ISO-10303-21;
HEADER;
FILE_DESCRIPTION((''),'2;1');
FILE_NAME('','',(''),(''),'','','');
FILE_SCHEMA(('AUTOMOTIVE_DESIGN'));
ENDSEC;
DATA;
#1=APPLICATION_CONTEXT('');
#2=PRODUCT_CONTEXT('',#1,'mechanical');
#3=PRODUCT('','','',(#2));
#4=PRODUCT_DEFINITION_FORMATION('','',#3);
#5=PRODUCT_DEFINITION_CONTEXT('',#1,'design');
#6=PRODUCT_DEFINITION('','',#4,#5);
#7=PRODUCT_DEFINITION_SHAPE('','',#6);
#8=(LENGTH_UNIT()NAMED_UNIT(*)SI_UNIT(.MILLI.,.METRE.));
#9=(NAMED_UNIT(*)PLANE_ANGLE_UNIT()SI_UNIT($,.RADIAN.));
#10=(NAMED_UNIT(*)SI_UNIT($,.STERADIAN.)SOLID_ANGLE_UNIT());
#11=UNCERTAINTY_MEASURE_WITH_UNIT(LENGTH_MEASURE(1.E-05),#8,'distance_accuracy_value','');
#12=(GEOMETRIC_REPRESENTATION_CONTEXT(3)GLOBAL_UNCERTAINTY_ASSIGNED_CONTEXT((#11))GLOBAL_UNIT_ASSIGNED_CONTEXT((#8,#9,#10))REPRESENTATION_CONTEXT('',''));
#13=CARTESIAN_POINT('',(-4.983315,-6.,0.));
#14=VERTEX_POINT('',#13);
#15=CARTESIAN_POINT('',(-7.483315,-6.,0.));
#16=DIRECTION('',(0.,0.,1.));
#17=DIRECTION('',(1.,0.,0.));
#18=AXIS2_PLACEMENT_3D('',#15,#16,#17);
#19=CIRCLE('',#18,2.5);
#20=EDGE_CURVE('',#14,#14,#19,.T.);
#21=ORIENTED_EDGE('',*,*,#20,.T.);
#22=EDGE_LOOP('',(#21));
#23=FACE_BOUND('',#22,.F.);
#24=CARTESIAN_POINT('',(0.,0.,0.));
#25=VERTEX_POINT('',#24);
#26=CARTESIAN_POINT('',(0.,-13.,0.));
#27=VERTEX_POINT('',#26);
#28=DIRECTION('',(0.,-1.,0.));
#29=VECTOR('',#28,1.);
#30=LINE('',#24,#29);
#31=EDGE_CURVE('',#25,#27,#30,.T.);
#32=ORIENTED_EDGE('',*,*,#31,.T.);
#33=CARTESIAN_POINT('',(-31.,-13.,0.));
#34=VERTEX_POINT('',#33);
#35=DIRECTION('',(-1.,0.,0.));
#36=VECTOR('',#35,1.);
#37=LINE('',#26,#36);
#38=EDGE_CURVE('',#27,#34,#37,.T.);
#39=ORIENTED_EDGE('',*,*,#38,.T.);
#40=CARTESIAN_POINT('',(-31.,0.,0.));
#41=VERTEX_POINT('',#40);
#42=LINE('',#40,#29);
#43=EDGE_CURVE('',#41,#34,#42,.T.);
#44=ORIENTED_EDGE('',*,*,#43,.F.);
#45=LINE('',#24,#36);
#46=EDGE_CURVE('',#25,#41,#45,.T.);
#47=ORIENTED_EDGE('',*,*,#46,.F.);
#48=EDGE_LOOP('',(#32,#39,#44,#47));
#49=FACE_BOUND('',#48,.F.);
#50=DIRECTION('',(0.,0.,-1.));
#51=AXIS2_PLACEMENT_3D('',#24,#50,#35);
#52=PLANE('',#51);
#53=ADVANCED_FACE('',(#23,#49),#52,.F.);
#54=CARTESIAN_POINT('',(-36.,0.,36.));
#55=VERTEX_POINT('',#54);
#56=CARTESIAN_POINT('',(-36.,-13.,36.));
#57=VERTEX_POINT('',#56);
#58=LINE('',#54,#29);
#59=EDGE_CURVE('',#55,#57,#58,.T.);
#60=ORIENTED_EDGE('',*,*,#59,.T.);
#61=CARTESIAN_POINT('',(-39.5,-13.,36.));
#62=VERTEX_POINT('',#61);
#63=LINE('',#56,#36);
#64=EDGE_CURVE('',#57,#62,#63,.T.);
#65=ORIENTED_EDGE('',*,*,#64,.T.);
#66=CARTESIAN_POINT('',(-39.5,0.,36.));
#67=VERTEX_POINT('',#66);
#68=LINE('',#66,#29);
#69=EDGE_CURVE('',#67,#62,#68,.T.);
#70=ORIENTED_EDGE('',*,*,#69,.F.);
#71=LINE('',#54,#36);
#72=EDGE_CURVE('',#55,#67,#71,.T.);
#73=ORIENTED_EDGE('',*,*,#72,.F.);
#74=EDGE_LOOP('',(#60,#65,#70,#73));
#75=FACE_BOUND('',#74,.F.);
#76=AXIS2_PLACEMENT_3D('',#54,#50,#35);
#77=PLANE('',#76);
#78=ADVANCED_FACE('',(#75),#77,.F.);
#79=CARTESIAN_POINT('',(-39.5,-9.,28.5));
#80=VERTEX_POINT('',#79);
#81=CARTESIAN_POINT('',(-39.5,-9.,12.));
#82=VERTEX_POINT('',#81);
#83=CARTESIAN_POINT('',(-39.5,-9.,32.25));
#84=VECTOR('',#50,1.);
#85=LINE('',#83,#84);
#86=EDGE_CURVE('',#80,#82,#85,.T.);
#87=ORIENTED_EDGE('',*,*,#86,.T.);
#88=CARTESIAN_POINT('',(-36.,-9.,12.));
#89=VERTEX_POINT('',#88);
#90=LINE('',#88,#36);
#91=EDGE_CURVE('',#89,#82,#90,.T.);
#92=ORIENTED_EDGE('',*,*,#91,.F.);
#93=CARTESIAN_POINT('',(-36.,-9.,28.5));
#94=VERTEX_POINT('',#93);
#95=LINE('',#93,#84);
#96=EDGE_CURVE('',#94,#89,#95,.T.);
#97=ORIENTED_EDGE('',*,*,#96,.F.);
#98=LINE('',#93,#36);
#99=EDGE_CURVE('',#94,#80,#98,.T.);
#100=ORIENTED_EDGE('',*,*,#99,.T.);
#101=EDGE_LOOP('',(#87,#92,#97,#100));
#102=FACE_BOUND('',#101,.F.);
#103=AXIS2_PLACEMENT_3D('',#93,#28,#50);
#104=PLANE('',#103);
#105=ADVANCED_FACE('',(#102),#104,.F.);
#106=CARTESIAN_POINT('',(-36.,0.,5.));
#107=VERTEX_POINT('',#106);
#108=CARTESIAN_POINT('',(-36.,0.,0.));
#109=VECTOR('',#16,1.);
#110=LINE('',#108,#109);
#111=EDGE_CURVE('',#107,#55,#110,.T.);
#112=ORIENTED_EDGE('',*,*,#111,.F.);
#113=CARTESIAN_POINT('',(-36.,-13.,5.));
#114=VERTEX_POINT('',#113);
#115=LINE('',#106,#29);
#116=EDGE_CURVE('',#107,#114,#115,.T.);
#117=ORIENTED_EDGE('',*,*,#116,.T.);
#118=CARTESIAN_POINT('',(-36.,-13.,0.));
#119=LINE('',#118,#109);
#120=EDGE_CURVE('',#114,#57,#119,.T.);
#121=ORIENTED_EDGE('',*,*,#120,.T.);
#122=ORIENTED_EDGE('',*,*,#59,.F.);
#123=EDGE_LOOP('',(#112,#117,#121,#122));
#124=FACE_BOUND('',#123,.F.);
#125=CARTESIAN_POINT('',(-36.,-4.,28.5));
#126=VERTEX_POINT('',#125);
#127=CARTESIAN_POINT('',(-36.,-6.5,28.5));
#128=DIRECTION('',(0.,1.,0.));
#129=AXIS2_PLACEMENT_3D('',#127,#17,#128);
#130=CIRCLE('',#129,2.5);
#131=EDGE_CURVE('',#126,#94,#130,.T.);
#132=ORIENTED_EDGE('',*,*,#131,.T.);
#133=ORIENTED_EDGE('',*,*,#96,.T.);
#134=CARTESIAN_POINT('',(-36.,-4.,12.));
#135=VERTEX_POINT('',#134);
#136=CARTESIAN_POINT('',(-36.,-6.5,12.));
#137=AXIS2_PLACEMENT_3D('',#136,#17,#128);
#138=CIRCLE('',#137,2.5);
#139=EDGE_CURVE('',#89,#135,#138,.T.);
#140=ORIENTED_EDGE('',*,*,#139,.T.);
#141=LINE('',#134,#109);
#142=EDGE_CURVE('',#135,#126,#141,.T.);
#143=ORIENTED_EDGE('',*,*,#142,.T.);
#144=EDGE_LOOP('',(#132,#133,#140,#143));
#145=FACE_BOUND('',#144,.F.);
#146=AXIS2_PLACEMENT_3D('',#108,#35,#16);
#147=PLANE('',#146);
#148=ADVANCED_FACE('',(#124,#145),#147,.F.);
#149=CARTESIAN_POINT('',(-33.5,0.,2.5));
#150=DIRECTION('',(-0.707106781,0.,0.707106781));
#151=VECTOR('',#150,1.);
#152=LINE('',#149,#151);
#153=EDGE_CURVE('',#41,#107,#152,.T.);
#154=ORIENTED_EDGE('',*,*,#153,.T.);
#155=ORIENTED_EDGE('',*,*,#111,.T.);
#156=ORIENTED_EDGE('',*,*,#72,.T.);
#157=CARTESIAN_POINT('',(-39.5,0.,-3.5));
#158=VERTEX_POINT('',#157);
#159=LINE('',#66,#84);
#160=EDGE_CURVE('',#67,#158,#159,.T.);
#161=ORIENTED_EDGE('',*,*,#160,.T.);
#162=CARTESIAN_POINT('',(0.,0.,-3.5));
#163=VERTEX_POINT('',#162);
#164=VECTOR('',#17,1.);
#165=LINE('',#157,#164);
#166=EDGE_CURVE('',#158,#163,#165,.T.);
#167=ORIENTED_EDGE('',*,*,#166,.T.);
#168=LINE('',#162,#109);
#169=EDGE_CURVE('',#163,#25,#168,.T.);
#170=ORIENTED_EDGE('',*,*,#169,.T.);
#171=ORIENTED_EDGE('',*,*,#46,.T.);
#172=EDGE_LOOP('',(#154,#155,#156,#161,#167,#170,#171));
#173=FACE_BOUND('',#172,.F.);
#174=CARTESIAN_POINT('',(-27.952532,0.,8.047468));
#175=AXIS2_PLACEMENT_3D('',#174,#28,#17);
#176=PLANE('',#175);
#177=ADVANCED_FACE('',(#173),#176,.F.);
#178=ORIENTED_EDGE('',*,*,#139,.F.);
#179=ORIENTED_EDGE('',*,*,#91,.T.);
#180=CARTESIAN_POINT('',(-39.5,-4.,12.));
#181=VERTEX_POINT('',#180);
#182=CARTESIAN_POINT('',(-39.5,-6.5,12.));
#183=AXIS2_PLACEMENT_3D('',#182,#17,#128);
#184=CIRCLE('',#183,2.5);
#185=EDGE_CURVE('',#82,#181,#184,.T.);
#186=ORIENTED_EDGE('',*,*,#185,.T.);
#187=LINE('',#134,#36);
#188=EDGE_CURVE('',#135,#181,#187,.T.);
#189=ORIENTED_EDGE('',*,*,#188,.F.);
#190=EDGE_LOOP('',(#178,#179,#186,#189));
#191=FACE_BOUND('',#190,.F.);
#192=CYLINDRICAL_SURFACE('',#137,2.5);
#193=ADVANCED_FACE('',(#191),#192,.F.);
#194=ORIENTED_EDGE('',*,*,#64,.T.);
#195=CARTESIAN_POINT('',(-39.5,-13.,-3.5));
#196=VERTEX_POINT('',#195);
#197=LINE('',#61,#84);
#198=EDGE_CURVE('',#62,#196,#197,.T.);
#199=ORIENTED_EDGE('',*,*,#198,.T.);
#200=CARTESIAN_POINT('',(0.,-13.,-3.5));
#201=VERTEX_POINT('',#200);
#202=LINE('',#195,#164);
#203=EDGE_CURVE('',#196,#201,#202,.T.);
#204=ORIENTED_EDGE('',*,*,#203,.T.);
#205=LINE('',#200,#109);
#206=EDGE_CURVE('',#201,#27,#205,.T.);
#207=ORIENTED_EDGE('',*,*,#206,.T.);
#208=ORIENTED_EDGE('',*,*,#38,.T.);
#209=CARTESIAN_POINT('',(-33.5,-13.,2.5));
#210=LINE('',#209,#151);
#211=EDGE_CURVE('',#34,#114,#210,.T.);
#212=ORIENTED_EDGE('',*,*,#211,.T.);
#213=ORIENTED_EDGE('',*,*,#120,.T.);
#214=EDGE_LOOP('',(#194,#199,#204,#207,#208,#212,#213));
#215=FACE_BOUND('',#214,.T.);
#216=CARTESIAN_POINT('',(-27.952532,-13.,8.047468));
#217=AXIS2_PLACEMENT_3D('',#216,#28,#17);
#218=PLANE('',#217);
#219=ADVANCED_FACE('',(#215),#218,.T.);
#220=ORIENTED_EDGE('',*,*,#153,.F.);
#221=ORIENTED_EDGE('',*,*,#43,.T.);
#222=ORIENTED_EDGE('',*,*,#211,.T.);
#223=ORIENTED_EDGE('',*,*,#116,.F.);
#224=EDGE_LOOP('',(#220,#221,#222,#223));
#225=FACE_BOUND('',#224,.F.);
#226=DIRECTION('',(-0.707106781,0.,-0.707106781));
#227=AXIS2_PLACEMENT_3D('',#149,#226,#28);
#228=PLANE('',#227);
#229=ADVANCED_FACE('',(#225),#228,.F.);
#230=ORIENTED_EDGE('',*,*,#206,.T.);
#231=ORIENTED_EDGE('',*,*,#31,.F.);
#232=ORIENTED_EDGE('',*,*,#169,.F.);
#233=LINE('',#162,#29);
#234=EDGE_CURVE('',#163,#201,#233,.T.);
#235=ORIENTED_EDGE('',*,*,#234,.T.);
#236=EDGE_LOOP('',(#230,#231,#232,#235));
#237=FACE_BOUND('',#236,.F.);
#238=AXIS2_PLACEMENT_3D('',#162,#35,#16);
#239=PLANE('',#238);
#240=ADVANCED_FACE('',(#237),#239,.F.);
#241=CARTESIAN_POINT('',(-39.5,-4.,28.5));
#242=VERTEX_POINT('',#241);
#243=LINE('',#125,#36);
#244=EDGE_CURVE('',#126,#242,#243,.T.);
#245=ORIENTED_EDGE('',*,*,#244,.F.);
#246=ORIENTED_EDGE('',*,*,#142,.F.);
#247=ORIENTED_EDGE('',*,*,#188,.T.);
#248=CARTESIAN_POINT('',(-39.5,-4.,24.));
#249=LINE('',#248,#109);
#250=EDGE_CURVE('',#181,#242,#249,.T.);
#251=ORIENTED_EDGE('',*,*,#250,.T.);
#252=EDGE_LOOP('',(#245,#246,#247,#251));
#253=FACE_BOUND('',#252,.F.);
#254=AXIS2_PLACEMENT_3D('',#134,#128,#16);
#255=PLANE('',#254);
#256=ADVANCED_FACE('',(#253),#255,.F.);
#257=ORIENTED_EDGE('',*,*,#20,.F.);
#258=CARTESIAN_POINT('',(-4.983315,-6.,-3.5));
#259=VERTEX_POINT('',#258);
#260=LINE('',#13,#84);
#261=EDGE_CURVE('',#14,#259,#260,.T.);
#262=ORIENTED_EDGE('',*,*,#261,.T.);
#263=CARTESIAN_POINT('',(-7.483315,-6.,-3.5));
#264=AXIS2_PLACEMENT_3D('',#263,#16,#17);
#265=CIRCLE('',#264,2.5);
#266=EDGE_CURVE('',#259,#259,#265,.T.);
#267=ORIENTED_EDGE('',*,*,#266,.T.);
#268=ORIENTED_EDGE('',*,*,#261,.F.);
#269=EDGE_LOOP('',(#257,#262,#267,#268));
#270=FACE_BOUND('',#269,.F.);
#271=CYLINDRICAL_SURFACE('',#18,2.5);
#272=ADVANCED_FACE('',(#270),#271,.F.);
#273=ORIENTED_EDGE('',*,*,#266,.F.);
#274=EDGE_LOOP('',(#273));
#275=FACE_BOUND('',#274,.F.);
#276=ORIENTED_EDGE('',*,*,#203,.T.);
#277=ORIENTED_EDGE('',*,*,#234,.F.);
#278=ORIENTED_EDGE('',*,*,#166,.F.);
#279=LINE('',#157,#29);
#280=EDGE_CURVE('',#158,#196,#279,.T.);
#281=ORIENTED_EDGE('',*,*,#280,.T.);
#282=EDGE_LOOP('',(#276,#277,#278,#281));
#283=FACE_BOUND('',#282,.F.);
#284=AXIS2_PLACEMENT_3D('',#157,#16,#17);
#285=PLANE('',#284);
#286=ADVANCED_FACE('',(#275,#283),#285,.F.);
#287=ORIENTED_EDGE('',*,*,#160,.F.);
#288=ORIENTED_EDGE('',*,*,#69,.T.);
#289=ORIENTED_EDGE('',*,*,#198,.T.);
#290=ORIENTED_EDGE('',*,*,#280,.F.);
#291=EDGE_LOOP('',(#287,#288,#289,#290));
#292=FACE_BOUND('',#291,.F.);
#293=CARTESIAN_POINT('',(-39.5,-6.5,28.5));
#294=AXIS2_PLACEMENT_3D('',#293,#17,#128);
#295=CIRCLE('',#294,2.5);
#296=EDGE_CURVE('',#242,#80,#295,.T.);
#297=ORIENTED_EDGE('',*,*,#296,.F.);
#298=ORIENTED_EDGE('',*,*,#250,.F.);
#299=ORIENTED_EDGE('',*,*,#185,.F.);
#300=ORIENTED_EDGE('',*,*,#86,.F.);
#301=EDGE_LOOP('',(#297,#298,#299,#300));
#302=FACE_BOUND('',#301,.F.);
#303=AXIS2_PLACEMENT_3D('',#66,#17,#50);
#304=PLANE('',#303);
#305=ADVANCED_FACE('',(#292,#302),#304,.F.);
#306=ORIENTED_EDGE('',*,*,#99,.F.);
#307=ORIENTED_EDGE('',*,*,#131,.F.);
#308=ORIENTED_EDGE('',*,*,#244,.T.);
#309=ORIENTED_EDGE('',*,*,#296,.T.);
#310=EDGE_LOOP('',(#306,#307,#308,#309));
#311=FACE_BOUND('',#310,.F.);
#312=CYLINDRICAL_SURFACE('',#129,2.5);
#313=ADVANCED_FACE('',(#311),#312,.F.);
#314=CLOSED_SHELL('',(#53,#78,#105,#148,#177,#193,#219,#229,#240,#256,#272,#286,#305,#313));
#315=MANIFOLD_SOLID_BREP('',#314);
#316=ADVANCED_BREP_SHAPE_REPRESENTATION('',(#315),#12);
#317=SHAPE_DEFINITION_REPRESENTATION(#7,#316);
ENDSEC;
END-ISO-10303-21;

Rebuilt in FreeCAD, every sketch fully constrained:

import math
import FreeCAD as App
import Part
import Sketcher

V = App.Vector
Q = App.Units.Quantity


def edges_at(feature, points):
    """Names of the edges that pass closest to the given points."""
    edges = feature.Shape.Edges
    near = lambda p: min(range(len(edges)), key=lambda i: edges[i].distToShape(Part.Vertex(*p))[0])
    return sorted({f"Edge{near(p) + 1}" for p in points})


def add_polygon(sketch, points):
    """Adds a closed chain of lines whose ends are joined by coincident constraints."""
    first, n = sketch.GeometryCount, len(points)
    for a, b in zip(points, points[1:] + points[:1]):
        sketch.addGeometry(Part.LineSegment(App.Vector(*a, 0), App.Vector(*b, 0)), False)
    for i in range(n):
        sketch.addConstraint(Sketcher.Constraint("Coincident", first + i, 2, first + (i + 1) % n, 1))

doc = App.newDocument("Part")
body = doc.addObject("PartDesign::Body", "Body")

# Sketch on XZ plane
sketch1 = body.newObject("Sketcher::SketchObject", "Sketch")
sketch1.AttachmentSupport = (doc.getObject("XZ_Plane"), [""])
sketch1.MapMode = "FlatFace"
add_polygon(sketch1, [(0, -3.5), (0, 0), (-36, 0), (-36, 36), (-39.5, 36), (-39.5, -3.5)])  # lines 0-5
sketch1.addConstraint([
    Sketcher.Constraint("Vertical", 0),
    Sketcher.Constraint("Horizontal", 1),
    Sketcher.Constraint("Vertical", 2),
    Sketcher.Constraint("Horizontal", 3),
    Sketcher.Constraint("Vertical", 4),
    Sketcher.Constraint("Horizontal", 5),
    Sketcher.Constraint("Coincident", 0, 2, -1, 1),
    Sketcher.Constraint("Equal", 3, 0),
    Sketcher.Constraint("Equal", 1, 2),
    Sketcher.Constraint("DistanceX", 1, 2, 1, 1, Q("36 mm")),
    Sketcher.Constraint("DistanceX", 3, 2, 3, 1, Q("3.5 mm")),
])
pad1 = body.newObject("PartDesign::Pad", "Pad")
pad1.Profile = sketch1
pad1.Length = 13

# Sketch on YZ plane
sketch2 = body.newObject("Sketcher::SketchObject", "Sketch001")
sketch2.AttachmentSupport = (doc.getObject("YZ_Plane"), [""])
sketch2.MapMode = "FlatFace"
sketch2.AttachmentOffset = App.Placement(V(0, 0, -36), App.Rotation())
sketch2.addGeometry([
    Part.ArcOfCircle(Part.Circle(V(-6.5, 28.5, 0), V(0, 0, 1), 2.5), math.radians(0), math.radians(180)),
    Part.LineSegment(V(-9, 28.5, 0), V(-9, 12, 0)),
    Part.ArcOfCircle(Part.Circle(V(-6.5, 12, 0), V(0, 0, 1), 2.5), math.radians(180), math.radians(360)),
    Part.LineSegment(V(-4, 12, 0), V(-4, 28.5, 0)),
], False)
sketch2.addConstraint([
    Sketcher.Constraint("Tangent", 0, 2, 1, 1),
    Sketcher.Constraint("Tangent", 1, 2, 2, 1),
    Sketcher.Constraint("Tangent", 2, 2, 3, 1),
    Sketcher.Constraint("Tangent", 3, 2, 0, 1),
    Sketcher.Constraint("Vertical", 1),
    Sketcher.Constraint("Vertical", 3),
    Sketcher.Constraint("Radius", 0, Q("2.5 mm")),
    Sketcher.Constraint("DistanceY", 1, 2, 1, 1, Q("16.5 mm")),
    Sketcher.Constraint("DistanceY", -1, 1, 2, 3, Q("12 mm")),
    Sketcher.Constraint("DistanceX", 0, 2, -1, 1, Q("9 mm")),
])
pocket1 = body.newObject("PartDesign::Pocket", "Pocket")
pocket1.Profile = sketch2
pocket1.Length = 25

# Sketch on XY plane
sketch3 = body.newObject("Sketcher::SketchObject", "Sketch002")
sketch3.AttachmentSupport = (doc.getObject("XY_Plane"), [""])
sketch3.MapMode = "FlatFace"
sketch3.addGeometry(Part.Circle(V(-7.5, -6, 0), V(0, 0, 1), 2.5), False)
sketch3.addConstraint([
    Sketcher.Constraint("Diameter", 0, Q("5 mm")),
    Sketcher.Constraint("DistanceY", 0, 3, -1, 1, Q("6 mm")),
    Sketcher.Constraint("DistanceX", 0, 3, -1, 1, Q("7.483315 mm")),
])
pocket2 = body.newObject("PartDesign::Pocket", "Pocket001")
pocket2.Profile = sketch3
pocket2.Length = 25
doc.recompute()

chamfer = body.newObject("PartDesign::Chamfer", "Chamfer")
chamfer.Base = (pocket2, edges_at(pocket2, [(-36, -6.5, 0)]))
chamfer.Size = 5

doc.recompute()
